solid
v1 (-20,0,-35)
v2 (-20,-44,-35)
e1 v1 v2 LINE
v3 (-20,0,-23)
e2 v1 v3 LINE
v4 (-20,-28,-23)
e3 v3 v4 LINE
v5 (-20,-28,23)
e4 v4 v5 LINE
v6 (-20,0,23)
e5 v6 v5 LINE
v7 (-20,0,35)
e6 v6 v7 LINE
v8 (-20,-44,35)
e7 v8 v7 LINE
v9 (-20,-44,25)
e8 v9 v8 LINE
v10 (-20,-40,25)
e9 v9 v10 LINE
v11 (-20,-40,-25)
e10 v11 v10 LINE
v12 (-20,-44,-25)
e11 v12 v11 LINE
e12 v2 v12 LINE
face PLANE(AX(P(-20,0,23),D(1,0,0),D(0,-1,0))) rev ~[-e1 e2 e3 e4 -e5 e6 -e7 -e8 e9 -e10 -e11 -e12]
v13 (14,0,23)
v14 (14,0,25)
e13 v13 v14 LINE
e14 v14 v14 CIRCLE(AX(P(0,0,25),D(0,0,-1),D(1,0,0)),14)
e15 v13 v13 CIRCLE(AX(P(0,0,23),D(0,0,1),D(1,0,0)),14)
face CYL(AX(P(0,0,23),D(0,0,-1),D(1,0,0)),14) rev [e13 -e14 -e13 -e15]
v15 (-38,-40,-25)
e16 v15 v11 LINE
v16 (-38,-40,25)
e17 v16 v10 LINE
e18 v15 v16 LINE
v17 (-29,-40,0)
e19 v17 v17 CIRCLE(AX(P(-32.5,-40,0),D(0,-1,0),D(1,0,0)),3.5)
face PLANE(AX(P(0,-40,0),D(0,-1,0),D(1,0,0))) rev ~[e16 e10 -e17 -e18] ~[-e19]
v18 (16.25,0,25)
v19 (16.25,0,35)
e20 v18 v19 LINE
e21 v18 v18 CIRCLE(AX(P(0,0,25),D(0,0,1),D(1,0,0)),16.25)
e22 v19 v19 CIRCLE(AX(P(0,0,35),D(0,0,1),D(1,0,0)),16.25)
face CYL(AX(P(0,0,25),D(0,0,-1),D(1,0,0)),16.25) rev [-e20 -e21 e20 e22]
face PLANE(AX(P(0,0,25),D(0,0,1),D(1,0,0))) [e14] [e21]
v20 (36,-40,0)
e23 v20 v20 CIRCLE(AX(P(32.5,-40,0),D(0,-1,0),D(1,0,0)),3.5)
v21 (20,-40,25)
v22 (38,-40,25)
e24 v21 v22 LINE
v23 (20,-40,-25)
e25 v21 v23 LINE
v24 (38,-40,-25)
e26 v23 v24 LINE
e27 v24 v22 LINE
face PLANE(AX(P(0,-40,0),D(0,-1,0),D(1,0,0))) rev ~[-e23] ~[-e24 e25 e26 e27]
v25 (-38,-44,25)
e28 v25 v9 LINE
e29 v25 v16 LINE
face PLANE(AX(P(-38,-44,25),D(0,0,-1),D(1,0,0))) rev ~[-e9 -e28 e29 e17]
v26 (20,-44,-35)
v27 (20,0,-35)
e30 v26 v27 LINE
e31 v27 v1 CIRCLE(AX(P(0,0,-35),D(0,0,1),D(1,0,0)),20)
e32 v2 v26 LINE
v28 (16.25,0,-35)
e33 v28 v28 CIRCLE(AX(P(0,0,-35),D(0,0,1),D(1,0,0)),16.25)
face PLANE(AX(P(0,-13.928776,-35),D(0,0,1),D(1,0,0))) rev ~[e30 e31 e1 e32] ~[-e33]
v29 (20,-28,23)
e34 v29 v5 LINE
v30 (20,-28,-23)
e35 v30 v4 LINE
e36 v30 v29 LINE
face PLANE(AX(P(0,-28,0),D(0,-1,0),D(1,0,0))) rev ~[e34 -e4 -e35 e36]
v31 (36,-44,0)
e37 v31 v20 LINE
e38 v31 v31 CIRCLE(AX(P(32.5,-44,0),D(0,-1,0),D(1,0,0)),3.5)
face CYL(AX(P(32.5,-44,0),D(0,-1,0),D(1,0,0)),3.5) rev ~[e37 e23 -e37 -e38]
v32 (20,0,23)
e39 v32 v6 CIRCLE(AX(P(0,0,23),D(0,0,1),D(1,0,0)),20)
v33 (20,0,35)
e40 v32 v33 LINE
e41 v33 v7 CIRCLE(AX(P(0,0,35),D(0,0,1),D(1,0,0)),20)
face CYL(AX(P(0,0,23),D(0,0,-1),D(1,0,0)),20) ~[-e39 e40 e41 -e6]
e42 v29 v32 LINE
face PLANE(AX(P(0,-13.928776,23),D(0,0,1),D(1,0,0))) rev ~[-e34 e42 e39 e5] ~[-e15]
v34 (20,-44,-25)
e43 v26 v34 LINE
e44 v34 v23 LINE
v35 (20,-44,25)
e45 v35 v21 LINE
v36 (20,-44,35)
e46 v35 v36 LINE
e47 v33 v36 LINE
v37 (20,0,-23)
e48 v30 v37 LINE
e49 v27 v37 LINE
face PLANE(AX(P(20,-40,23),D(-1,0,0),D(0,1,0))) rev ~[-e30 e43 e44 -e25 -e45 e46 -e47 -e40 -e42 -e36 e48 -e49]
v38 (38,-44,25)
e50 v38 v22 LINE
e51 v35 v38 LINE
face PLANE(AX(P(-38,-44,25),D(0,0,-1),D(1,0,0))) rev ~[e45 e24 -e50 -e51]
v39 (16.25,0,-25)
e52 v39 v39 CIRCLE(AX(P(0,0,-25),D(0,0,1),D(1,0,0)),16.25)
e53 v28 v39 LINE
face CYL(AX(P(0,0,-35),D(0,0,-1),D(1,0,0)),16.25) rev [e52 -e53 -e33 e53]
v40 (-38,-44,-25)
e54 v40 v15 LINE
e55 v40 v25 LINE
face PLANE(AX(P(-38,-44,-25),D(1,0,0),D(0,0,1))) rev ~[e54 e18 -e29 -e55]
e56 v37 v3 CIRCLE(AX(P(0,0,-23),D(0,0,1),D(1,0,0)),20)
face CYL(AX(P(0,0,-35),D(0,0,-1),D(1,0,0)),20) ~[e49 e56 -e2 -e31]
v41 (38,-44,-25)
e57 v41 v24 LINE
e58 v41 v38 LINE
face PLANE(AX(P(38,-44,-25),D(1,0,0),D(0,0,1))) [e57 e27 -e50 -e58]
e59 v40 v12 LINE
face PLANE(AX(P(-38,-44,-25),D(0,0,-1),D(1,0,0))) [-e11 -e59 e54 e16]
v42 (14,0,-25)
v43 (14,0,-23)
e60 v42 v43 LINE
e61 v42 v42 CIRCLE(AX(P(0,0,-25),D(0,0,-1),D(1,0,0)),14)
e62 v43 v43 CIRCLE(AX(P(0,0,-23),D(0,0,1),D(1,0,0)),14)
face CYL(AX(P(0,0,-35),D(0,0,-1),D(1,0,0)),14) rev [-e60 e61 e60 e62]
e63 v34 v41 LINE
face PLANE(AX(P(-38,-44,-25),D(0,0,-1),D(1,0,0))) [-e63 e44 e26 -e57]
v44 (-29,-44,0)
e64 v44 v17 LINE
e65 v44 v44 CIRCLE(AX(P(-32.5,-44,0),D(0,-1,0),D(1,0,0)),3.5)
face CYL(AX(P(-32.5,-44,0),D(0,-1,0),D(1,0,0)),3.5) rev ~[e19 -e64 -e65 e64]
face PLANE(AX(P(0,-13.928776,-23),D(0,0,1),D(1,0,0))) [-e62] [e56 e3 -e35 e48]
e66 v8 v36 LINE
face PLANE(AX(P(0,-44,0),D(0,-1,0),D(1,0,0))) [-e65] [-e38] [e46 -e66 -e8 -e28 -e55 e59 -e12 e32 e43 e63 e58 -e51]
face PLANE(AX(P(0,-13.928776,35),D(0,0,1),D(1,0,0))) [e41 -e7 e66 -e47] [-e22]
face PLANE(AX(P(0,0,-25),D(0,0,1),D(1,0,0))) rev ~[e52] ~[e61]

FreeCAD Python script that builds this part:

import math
import FreeCAD as App
import Part
import Sketcher

V = App.Vector

doc = App.newDocument("Part")
body = doc.addObject("PartDesign::Body", "Body")

sketch1 = body.newObject("Sketcher::SketchObject", "Sketch")
sketch1.AttachmentSupport = (doc.getObject("XY_Plane"), [""])
sketch1.MapMode = "FlatFace"
sketch1.addGeometry(Part.LineSegment(V(-38, 25, 0), V(-38, -25, 0)), False)
sketch1.addGeometry(Part.LineSegment(V(-38, -25, 0), V(38, -25, 0)), False)
sketch1.addGeometry(Part.LineSegment(V(38, -25, 0), V(38, 25, 0)), False)
sketch1.addGeometry(Part.LineSegment(V(38, 25, 0), V(-38, 25, 0)), False)
sketch1.addGeometry(Part.Circle(V(-32.5, 0, 0), V(0, 0, 1), 3.5), False)
sketch1.addGeometry(Part.Circle(V(32.5, 0, 0), V(0, 0, 1), 3.5), False)
sketch1.addConstraint(Sketcher.Constraint("Coincident", 0, 2, 1, 1))
sketch1.addConstraint(Sketcher.Constraint("Coincident", 1, 2, 2, 1))
sketch1.addConstraint(Sketcher.Constraint("Coincident", 2, 2, 3, 1))
sketch1.addConstraint(Sketcher.Constraint("Coincident", 3, 2, 0, 1))
sketch1.addConstraint(Sketcher.Constraint("Vertical", 0))
sketch1.addConstraint(Sketcher.Constraint("Horizontal", 1))
sketch1.addConstraint(Sketcher.Constraint("Vertical", 2))
sketch1.addConstraint(Sketcher.Constraint("Horizontal", 3))
sketch1.addConstraint(Sketcher.Constraint("Equal", 4, 5))
sketch1.addConstraint(Sketcher.Constraint("Symmetric", 4, 3, 5, 3, -1, 1))
sketch1.addConstraint(Sketcher.Constraint("Symmetric", 0, 2, 2, 2, -1, 1))
sketch1.addConstraint(Sketcher.Constraint("PointOnObject", 4, 3, -1))
sketch1.addConstraint(Sketcher.Constraint("Diameter", 4, 7.0))
sketch1.addConstraint(Sketcher.Constraint("DistanceX", 1, 1, 1, 2, 76.0))
sketch1.addConstraint(Sketcher.Constraint("DistanceY", 0, 2, 0, 1, 50.0))
sketch1.addConstraint(Sketcher.Constraint("DistanceX", 4, 3, 5, 3, 65.0))
pad1 = body.newObject("PartDesign::Pad", "Pad")
pad1.Profile = sketch1
pad1.Length = 4
pad1.Reversed = True
body2 = doc.addObject("PartDesign::Body", "Body001")
doc.recompute()

body.Placement = App.Placement(V(0, 0, 0), App.Rotation(V(1, 0, 0), 90))
boolean = body2.newObject("PartDesign::Boolean", "Boolean")
boolean.Type = "Fuse"
boolean.addObjects([body])
body3 = doc.addObject("PartDesign::Body", "Body002")
doc.recompute()

body2.Placement = App.Placement(V(0, -44, 0), App.Rotation(V(0, 0, 1), 0))
boolean2 = body3.newObject("PartDesign::Boolean", "Boolean001")
boolean2.Type = "Fuse"
boolean2.addObjects([body2])
body4 = doc.addObject("PartDesign::Body", "Body003")

sketch2 = body4.newObject("Sketcher::SketchObject", "Sketch001")
sketch2.AttachmentSupport = (doc.getObject("XY_Plane003"), [""])
sketch2.MapMode = "FlatFace"
sketch2.addGeometry(Part.Circle(V(0, 0, 0), V(0, 0, 1), 16), False)
sketch2.addConstraint(Sketcher.Constraint("Coincident", 0, 3, -1, 1))
sketch2.addConstraint(Sketcher.Constraint("Diameter", 0, 32.5))
pad2 = body4.newObject("PartDesign::Pad", "Pad001")
pad2.Profile = sketch2
pad2.Length = 10
body5 = doc.addObject("PartDesign::Body", "Body004")

sketch3 = body5.newObject("Sketcher::SketchObject", "Sketch002")
sketch3.AttachmentSupport = (doc.getObject("XY_Plane004"), [""])
sketch3.MapMode = "FlatFace"
sketch3.addGeometry(Part.ArcOfCircle(Part.Circle(V(0, 0, 0), V(0, 0, 1), 20), math.radians(0), math.radians(180)), False)
sketch3.addGeometry(Part.LineSegment(V(-20, 0, 0), V(-20, -40, 0)), False)
sketch3.addGeometry(Part.LineSegment(V(-20, -40, 0), V(20, -40, 0)), False)
sketch3.addGeometry(Part.LineSegment(V(20, -40, 0), V(20, 0, 0)), False)
sketch3.addGeometry(Part.Circle(V(0, 0, 0), V(0, 0, 1), 14), False)
sketch3.addConstraint(Sketcher.Constraint("Tangent", 0, 2, 1, 1))
sketch3.addConstraint(Sketcher.Constraint("Coincident", 1, 2, 2, 1))
sketch3.addConstraint(Sketcher.Constraint("Coincident", 2, 2, 3, 1))
sketch3.addConstraint(Sketcher.Constraint("Tangent", 3, 2, 0, 1))
sketch3.addConstraint(Sketcher.Constraint("Vertical", 1))
sketch3.addConstraint(Sketcher.Constraint("Horizontal", 2))
sketch3.addConstraint(Sketcher.Constraint("Vertical", 3))
sketch3.addConstraint(Sketcher.Constraint("Coincident", 0, 3, -1, 1))
sketch3.addConstraint(Sketcher.Constraint("Coincident", 4, 3, -1, 1))
sketch3.addConstraint(Sketcher.Constraint("Equal", 2, 1))
sketch3.addConstraint(Sketcher.Constraint("Diameter", 4, 28.0))
sketch3.addConstraint(Sketcher.Constraint("Radius", 0, 20.0))
pad3 = body5.newObject("PartDesign::Pad", "Pad002")
pad3.Profile = sketch3
pad3.Length = 12
doc.recompute()

boolean3 = body5.newObject("PartDesign::Boolean", "Boolean002")
boolean3.Type = "Cut"
boolean3.addObjects([body4])
body6 = doc.addObject("PartDesign::Body", "Body005")
doc.recompute()

body5.Placement = App.Placement(V(0, 0, -35), App.Rotation(V(0, 0, 1), 0))
boolean4 = body6.newObject("PartDesign::Boolean", "Boolean003")
boolean4.Type = "Fuse"
boolean4.addObjects([body5])
body7 = doc.addObject("PartDesign::Body", "Body006")

sketch4 = body7.newObject("Sketcher::SketchObject", "Sketch003")
sketch4.AttachmentSupport = (doc.getObject("XY_Plane006"), [""])
sketch4.MapMode = "FlatFace"
sketch4.AttachmentOffset = App.Placement(V(0, 0, 2), App.Rotation())
sketch4.addGeometry(Part.Circle(V(0, 0, 0), V(0, 0, 1), 16), False)
sketch4.addConstraint(Sketcher.Constraint("Coincident", 0, 3, -1, 1))
sketch4.addConstraint(Sketcher.Constraint("Diameter", 0, 32.5))
pad4 = body7.newObject("PartDesign::Pad", "Pad003")
pad4.Profile = sketch4
pad4.Length = 10
body8 = doc.addObject("PartDesign::Body", "Body007")

sketch5 = body8.newObject("Sketcher::SketchObject", "Sketch004")
sketch5.AttachmentSupport = (doc.getObject("XY_Plane007"), [""])
sketch5.MapMode = "FlatFace"
sketch5.addGeometry(Part.ArcOfCircle(Part.Circle(V(0, 0, 0), V(0, 0, 1), 20), math.radians(0), math.radians(180)), False)
sketch5.addGeometry(Part.LineSegment(V(-20, 0, 0), V(-20, -40, 0)), False)
sketch5.addGeometry(Part.LineSegment(V(-20, -40, 0), V(20, -40, 0)), False)
sketch5.addGeometry(Part.LineSegment(V(20, -40, 0), V(20, 0, 0)), False)
sketch5.addGeometry(Part.Circle(V(0, 0, 0), V(0, 0, 1), 14), False)
sketch5.addConstraint(Sketcher.Constraint("Tangent", 0, 2, 1, 1))
sketch5.addConstraint(Sketcher.Constraint("Coincident", 1, 2, 2, 1))
sketch5.addConstraint(Sketcher.Constraint("Coincident", 2, 2, 3, 1))
sketch5.addConstraint(Sketcher.Constraint("Tangent", 3, 2, 0, 1))
sketch5.addConstraint(Sketcher.Constraint("Vertical", 1))
sketch5.addConstraint(Sketcher.Constraint("Horizontal", 2))
sketch5.addConstraint(Sketcher.Constraint("Vertical", 3))
sketch5.addConstraint(Sketcher.Constraint("Coincident", 0, 3, -1, 1))
sketch5.addConstraint(Sketcher.Constraint("Coincident", 4, 3, -1, 1))
sketch5.addConstraint(Sketcher.Constraint("Equal", 2, 1))
sketch5.addConstraint(Sketcher.Constraint("Diameter", 4, 28.0))
sketch5.addConstraint(Sketcher.Constraint("Radius", 0, 20.0))
pad5 = body8.newObject("PartDesign::Pad", "Pad004")
pad5.Profile = sketch5
pad5.Length = 12
doc.recompute()

boolean5 = body8.newObject("PartDesign::Boolean", "Boolean004")
boolean5.Type = "Cut"
boolean5.addObjects([body7])
body9 = doc.addObject("PartDesign::Body", "Body008")
doc.recompute()

body8.Placement = App.Placement(V(0, 0, 23), App.Rotation(V(0, 0, 1), 0))
boolean6 = body9.newObject("PartDesign::Boolean", "Boolean005")
boolean6.Type = "Fuse"
boolean6.addObjects([body8])
body10 = doc.addObject("PartDesign::Body", "Body009")

sketch6 = body10.newObject("Sketcher::SketchObject", "Sketch005")
sketch6.AttachmentSupport = (doc.getObject("XY_Plane009"), [""])
sketch6.MapMode = "FlatFace"
sketch6.addGeometry(Part.LineSegment(V(-20, 35, 0), V(-20, -35, 0)), False)
sketch6.addGeometry(Part.LineSegment(V(-20, -35, 0), V(20, -35, 0)), False)
sketch6.addGeometry(Part.LineSegment(V(20, -35, 0), V(20, 35, 0)), False)
sketch6.addGeometry(Part.LineSegment(V(20, 35, 0), V(-20, 35, 0)), False)
sketch6.addConstraint(Sketcher.Constraint("Coincident", 0, 2, 1, 1))
sketch6.addConstraint(Sketcher.Constraint("Coincident", 1, 2, 2, 1))
sketch6.addConstraint(Sketcher.Constraint("Coincident", 2, 2, 3, 1))
sketch6.addConstraint(Sketcher.Constraint("Coincident", 3, 2, 0, 1))
sketch6.addConstraint(Sketcher.Constraint("Vertical", 0))
sketch6.addConstraint(Sketcher.Constraint("Horizontal", 1))
sketch6.addConstraint(Sketcher.Constraint("Vertical", 2))
sketch6.addConstraint(Sketcher.Constraint("Horizontal", 3))
sketch6.addConstraint(Sketcher.Constraint("Symmetric", 0, 2, 2, 2, -1, 1))
sketch6.addConstraint(Sketcher.Constraint("DistanceX", 1, 1, 1, 2, 40.0))
sketch6.addConstraint(Sketcher.Constraint("DistanceY", 0, 2, 0, 1, 70.0))
pad6 = body10.newObject("PartDesign::Pad", "Pad005")
pad6.Profile = sketch6
pad6.Length = 16
pad6.Reversed = True
body11 = doc.addObject("PartDesign::Body", "Body010")
doc.recompute()

body10.Placement = App.Placement(V(0, 0, 0), App.Rotation(V(1, 0, 0), 90))
boolean7 = body11.newObject("PartDesign::Boolean", "Boolean006")
boolean7.Type = "Fuse"
boolean7.addObjects([body10])
body12 = doc.addObject("PartDesign::Body", "Body011")
doc.recompute()

body11.Placement = App.Placement(V(0, -44, 0), App.Rotation(V(0, 0, 1), 0))
boolean8 = body12.newObject("PartDesign::Boolean", "Boolean007")
boolean8.Type = "Fuse"
boolean8.addObjects([body11])
doc.recompute()

boolean9 = body12.newObject("PartDesign::Boolean", "Boolean008")
boolean9.Type = "Fuse"
boolean9.addObjects([body3])
doc.recompute()

boolean10 = body12.newObject("PartDesign::Boolean", "Boolean009")
boolean10.Type = "Fuse"
boolean10.addObjects([body6])
doc.recompute()

boolean11 = body12.newObject("PartDesign::Boolean", "Boolean010")
boolean11.Type = "Fuse"
boolean11.addObjects([body9])

doc.recompute()
